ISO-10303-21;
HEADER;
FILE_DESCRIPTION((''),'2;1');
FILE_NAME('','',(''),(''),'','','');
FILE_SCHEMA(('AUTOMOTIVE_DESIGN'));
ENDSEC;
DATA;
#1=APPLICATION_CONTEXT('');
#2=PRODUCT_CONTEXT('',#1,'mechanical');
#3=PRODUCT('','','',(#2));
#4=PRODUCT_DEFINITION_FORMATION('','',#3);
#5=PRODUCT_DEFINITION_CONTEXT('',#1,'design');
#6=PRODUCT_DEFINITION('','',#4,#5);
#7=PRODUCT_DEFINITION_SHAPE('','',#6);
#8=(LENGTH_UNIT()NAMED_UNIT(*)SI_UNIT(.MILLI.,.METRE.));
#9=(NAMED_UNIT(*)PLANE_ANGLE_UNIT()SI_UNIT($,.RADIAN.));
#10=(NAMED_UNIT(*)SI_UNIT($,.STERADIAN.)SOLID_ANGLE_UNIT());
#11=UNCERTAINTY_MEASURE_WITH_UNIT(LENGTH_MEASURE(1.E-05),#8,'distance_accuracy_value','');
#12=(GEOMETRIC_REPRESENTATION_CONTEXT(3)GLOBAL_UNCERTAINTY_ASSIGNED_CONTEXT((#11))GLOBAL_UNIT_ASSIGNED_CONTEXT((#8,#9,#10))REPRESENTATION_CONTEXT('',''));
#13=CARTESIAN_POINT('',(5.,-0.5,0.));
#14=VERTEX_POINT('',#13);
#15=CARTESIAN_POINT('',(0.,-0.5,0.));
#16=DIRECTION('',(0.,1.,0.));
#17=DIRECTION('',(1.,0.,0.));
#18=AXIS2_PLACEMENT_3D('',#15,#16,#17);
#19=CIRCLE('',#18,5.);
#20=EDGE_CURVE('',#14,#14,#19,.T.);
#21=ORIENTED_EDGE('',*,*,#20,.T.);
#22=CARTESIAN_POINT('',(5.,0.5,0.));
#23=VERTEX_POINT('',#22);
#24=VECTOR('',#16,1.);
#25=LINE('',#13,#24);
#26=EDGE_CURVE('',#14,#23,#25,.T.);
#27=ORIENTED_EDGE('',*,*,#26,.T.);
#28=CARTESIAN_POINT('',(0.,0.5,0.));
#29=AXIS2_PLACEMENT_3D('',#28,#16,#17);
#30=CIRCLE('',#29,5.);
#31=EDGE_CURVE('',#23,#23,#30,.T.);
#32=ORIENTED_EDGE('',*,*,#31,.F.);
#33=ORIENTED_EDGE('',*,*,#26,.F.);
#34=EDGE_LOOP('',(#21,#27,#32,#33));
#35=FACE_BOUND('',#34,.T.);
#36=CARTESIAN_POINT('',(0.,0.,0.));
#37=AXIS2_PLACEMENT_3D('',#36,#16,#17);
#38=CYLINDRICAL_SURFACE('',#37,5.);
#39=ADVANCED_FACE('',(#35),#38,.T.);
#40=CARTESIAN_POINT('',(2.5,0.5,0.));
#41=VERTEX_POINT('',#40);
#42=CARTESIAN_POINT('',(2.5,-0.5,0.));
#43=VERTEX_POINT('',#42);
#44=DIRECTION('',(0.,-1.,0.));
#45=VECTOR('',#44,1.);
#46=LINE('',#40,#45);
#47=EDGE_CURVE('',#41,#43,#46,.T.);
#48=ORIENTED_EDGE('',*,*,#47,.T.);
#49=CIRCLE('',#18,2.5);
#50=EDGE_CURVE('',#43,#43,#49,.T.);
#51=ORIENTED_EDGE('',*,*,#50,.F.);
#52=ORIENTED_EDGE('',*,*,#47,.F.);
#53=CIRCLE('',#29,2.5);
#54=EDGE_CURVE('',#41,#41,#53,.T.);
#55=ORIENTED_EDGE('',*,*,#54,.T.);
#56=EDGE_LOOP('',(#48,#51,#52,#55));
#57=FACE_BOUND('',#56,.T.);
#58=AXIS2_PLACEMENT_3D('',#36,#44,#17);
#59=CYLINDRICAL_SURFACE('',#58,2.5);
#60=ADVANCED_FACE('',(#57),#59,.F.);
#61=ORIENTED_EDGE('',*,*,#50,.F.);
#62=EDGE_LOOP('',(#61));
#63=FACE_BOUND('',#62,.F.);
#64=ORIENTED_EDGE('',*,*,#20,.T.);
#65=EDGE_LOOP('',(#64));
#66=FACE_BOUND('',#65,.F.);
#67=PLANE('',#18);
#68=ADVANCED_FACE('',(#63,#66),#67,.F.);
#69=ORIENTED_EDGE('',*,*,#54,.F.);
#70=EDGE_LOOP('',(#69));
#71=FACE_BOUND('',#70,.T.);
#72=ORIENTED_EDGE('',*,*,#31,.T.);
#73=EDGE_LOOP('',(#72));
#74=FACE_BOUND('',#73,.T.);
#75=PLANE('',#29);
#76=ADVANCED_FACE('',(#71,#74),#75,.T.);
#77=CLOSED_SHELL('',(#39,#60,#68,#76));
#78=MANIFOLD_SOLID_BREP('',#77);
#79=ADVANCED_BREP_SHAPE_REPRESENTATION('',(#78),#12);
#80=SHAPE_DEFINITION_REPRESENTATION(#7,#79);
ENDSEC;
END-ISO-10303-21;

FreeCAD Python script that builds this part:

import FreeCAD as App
import Part
import Sketcher

V = App.Vector
Q = App.Units.Quantity

doc = App.newDocument("Part")
body = doc.addObject("PartDesign::Body", "Body")

sketch1 = body.newObject("Sketcher::SketchObject", "Sketch")
sketch1.AttachmentSupport = (doc.getObject("XZ_Plane"), [""])
sketch1.MapMode = "FlatFace"
sketch1.addGeometry([
    Part.Circle(V(0, 0, 0), V(0, 0, 1), 5),
    Part.Circle(V(0, 0, 0), V(0, 0, 1), 2.5),
], False)
sketch1.addConstraint([
    Sketcher.Constraint("Coincident", 0, 3, -1, 1),
    Sketcher.Constraint("Coincident", 1, 3, -1, 1),
    Sketcher.Constraint("Diameter", 0, Q("10 mm")),
    Sketcher.Constraint("Diameter", 1, Q("5 mm")),
])
pad1 = body.newObject("PartDesign::Pad", "Pad")
pad1.Profile = sketch1
pad1.Length = 1
pad1.Midplane = True

doc.recompute()
